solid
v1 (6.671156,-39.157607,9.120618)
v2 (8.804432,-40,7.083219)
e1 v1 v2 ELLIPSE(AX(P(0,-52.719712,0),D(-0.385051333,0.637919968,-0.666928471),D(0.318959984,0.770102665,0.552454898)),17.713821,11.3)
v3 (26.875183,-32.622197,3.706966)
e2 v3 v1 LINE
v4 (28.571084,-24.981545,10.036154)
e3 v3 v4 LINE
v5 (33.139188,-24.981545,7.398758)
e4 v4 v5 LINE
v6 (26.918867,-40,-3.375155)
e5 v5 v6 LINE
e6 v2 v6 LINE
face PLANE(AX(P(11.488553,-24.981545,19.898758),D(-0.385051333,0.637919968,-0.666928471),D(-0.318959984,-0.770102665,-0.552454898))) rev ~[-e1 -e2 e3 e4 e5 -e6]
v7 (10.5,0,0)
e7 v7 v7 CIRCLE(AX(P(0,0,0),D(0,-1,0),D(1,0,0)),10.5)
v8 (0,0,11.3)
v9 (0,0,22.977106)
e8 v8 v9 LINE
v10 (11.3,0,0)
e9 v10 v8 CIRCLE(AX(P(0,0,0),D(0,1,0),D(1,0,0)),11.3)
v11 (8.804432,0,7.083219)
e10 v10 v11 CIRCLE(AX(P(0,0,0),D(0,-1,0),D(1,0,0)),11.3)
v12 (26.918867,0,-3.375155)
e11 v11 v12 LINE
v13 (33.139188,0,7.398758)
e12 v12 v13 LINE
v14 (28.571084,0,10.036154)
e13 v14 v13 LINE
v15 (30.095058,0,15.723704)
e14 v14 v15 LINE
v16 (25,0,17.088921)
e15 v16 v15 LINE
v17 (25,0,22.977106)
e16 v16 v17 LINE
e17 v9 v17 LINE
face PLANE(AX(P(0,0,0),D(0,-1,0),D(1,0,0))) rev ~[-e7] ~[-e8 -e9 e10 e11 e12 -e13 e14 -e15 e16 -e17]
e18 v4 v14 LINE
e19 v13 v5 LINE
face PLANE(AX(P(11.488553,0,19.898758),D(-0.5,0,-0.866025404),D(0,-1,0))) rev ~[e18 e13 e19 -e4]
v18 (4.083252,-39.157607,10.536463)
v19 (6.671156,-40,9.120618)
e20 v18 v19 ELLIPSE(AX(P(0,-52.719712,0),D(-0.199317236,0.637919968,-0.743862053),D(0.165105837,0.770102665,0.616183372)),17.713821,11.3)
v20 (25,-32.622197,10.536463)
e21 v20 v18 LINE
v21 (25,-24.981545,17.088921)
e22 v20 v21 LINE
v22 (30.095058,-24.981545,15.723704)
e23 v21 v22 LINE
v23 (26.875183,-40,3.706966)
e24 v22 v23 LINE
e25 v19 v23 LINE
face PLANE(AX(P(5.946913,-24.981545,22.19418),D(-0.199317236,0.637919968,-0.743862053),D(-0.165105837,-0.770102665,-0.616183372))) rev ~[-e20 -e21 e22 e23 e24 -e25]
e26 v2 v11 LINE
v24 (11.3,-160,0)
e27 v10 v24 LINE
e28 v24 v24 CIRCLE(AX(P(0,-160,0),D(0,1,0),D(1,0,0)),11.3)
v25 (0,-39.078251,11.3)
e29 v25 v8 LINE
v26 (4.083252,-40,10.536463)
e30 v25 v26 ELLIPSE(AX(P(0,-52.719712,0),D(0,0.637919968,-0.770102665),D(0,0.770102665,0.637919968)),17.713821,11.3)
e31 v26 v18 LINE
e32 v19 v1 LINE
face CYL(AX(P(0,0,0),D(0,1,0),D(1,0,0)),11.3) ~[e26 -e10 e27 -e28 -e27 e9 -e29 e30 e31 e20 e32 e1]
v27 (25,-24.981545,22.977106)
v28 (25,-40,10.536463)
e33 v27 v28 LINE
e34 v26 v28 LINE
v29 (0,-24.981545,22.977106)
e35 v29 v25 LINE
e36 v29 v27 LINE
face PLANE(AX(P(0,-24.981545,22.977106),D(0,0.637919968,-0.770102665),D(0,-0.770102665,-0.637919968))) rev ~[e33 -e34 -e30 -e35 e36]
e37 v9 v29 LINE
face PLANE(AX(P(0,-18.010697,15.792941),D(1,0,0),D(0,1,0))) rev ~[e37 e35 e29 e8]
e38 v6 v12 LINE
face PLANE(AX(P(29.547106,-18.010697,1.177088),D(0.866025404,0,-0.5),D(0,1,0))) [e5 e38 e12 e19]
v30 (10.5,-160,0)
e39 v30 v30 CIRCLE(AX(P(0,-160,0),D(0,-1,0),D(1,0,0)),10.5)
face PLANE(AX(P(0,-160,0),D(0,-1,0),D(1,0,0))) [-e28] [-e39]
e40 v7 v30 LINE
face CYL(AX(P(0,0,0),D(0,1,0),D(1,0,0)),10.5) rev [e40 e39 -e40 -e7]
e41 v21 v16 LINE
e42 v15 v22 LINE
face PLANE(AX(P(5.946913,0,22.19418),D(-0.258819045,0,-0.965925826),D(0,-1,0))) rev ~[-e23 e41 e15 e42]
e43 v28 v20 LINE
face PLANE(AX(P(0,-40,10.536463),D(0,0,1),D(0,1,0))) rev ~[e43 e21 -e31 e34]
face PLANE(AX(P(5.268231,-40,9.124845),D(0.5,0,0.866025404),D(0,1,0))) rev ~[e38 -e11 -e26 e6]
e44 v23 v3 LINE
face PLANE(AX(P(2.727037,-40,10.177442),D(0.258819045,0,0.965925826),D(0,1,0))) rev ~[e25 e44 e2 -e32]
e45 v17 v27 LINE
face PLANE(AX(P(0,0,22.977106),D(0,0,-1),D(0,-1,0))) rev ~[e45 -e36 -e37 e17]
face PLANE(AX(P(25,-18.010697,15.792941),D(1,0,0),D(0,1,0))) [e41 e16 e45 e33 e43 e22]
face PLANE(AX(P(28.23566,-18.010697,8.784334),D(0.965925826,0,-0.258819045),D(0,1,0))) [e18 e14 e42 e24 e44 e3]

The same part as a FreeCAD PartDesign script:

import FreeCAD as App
import Part
import Sketcher
from FreeCAD import Vector


def add_polygon(sketch, points):
    """Adds a closed chain of lines whose ends are joined by coincident constraints."""
    first, n = sketch.GeometryCount, len(points)
    for a, b in zip(points, points[1:] + points[:1]):
        sketch.addGeometry(Part.LineSegment(App.Vector(*a, 0), App.Vector(*b, 0)), False)
    for i in range(n):
        sketch.addConstraint(Sketcher.Constraint("Coincident", first + i, 2, first + (i + 1) % n, 1))

doc = App.newDocument("Part")
params = doc.addObject("Spreadsheet::Sheet", "Params")
for row, (alias, value) in enumerate([
    ("sketch1_diameter", "21 mm"),
    ("sketch1_diameter2", "22.6 mm"),
    ("pad1_length", "160 mm"),
    ("sketch2_width", "40 mm"),
    ("pad2_length", "25 mm"),
], start=1):
    params.set(f"A{row}", alias)
    params.set(f"B{row}", "=" + value)
    params.setAlias(f"B{row}", alias)

body = doc.addObject("PartDesign::Body", "Body")

sketch1 = doc.addObject("Sketcher::SketchObject", "Sketch")
body.addObject(sketch1)
sketch1.AttachmentSupport = (doc.XZ_Plane, [""])
sketch1.MapMode = "FlatFace"
sketch1.addGeometry([
    Part.Circle(Vector(0, 0, 0), Vector(0, 0, 1), 11),
    Part.Circle(Vector(0, 0, 0), Vector(0, 0, 1), 10),
], False)
sketch1.addConstraint([
    Sketcher.Constraint("Coincident", 0, 3, -1, 1),
    Sketcher.Constraint("Coincident", 1, 3, -1, 1),
    Sketcher.Constraint("Diameter", 1, 21.0),
    Sketcher.Constraint("Diameter", 0, 22.6),
])
sketch1.setExpression("Constraints[2]", "Params.sketch1_diameter")
sketch1.setExpression("Constraints[3]", "Params.sketch1_diameter2")
pad1 = doc.addObject("PartDesign::Pad", "Pad")
body.addObject(pad1)
pad1.Profile = sketch1
pad1.setExpression("Length", "Params.pad1_length")

sketch2 = doc.addObject("Sketcher::SketchObject", "Sketch001")
body.addObject(sketch2)
sketch2.AttachmentSupport = (doc.YZ_Plane, [""])
sketch2.MapMode = "FlatFace"
add_polygon(sketch2, [(-40, 11), (0, 11), (0, 23), (-25, 23)])
sketch2.addConstraint([
    Sketcher.Constraint("Horizontal", 0),
    Sketcher.Constraint("Vertical", 1),
    Sketcher.Constraint("Horizontal", 2),
    Sketcher.Constraint("PointOnObject", 0, 2, -2),
    Sketcher.Constraint("DistanceX", 0, 1, 0, 2, 40.0),
    Sketcher.Constraint("DistanceX", 2, 2, 2, 1, 24.981545),
    Sketcher.Constraint("DistanceY", 1, 1, 1, 2, 12.440643),
    Sketcher.Constraint("DistanceY", -1, 1, 0, 2, 10.536463),
])
sketch2.setExpression("Constraints[8]", "Params.sketch2_width")
pad2 = doc.addObject("PartDesign::Pad", "Pad001")
body.addObject(pad2)
pad2.Profile = sketch2
pad2.setExpression("Length", "Params.pad2_length")
body2 = doc.addObject("PartDesign::Body", "Body001")
doc.recompute()

body2.BaseFeature = body
doc.recompute()

body3 = doc.addObject("PartDesign::Body", "Body002")
body3.BaseFeature = body
body3.Placement = App.Placement(Vector(0, 0, 0), App.Rotation(Vector(0, 1, 0), 15))
boolean = doc.addObject("PartDesign::Boolean", "Boolean")
body2.addObject(boolean)
boolean.Type = "Fuse"
boolean.addObjects([body3])
doc.recompute()

body.Placement = App.Placement(Vector(0, 0, 0), App.Rotation(Vector(0, 1, 0), 30))
boolean2 = doc.addObject("PartDesign::Boolean", "Boolean001")
body2.addObject(boolean2)
boolean2.Type = "Fuse"
boolean2.addObjects([body])

doc.recompute()
